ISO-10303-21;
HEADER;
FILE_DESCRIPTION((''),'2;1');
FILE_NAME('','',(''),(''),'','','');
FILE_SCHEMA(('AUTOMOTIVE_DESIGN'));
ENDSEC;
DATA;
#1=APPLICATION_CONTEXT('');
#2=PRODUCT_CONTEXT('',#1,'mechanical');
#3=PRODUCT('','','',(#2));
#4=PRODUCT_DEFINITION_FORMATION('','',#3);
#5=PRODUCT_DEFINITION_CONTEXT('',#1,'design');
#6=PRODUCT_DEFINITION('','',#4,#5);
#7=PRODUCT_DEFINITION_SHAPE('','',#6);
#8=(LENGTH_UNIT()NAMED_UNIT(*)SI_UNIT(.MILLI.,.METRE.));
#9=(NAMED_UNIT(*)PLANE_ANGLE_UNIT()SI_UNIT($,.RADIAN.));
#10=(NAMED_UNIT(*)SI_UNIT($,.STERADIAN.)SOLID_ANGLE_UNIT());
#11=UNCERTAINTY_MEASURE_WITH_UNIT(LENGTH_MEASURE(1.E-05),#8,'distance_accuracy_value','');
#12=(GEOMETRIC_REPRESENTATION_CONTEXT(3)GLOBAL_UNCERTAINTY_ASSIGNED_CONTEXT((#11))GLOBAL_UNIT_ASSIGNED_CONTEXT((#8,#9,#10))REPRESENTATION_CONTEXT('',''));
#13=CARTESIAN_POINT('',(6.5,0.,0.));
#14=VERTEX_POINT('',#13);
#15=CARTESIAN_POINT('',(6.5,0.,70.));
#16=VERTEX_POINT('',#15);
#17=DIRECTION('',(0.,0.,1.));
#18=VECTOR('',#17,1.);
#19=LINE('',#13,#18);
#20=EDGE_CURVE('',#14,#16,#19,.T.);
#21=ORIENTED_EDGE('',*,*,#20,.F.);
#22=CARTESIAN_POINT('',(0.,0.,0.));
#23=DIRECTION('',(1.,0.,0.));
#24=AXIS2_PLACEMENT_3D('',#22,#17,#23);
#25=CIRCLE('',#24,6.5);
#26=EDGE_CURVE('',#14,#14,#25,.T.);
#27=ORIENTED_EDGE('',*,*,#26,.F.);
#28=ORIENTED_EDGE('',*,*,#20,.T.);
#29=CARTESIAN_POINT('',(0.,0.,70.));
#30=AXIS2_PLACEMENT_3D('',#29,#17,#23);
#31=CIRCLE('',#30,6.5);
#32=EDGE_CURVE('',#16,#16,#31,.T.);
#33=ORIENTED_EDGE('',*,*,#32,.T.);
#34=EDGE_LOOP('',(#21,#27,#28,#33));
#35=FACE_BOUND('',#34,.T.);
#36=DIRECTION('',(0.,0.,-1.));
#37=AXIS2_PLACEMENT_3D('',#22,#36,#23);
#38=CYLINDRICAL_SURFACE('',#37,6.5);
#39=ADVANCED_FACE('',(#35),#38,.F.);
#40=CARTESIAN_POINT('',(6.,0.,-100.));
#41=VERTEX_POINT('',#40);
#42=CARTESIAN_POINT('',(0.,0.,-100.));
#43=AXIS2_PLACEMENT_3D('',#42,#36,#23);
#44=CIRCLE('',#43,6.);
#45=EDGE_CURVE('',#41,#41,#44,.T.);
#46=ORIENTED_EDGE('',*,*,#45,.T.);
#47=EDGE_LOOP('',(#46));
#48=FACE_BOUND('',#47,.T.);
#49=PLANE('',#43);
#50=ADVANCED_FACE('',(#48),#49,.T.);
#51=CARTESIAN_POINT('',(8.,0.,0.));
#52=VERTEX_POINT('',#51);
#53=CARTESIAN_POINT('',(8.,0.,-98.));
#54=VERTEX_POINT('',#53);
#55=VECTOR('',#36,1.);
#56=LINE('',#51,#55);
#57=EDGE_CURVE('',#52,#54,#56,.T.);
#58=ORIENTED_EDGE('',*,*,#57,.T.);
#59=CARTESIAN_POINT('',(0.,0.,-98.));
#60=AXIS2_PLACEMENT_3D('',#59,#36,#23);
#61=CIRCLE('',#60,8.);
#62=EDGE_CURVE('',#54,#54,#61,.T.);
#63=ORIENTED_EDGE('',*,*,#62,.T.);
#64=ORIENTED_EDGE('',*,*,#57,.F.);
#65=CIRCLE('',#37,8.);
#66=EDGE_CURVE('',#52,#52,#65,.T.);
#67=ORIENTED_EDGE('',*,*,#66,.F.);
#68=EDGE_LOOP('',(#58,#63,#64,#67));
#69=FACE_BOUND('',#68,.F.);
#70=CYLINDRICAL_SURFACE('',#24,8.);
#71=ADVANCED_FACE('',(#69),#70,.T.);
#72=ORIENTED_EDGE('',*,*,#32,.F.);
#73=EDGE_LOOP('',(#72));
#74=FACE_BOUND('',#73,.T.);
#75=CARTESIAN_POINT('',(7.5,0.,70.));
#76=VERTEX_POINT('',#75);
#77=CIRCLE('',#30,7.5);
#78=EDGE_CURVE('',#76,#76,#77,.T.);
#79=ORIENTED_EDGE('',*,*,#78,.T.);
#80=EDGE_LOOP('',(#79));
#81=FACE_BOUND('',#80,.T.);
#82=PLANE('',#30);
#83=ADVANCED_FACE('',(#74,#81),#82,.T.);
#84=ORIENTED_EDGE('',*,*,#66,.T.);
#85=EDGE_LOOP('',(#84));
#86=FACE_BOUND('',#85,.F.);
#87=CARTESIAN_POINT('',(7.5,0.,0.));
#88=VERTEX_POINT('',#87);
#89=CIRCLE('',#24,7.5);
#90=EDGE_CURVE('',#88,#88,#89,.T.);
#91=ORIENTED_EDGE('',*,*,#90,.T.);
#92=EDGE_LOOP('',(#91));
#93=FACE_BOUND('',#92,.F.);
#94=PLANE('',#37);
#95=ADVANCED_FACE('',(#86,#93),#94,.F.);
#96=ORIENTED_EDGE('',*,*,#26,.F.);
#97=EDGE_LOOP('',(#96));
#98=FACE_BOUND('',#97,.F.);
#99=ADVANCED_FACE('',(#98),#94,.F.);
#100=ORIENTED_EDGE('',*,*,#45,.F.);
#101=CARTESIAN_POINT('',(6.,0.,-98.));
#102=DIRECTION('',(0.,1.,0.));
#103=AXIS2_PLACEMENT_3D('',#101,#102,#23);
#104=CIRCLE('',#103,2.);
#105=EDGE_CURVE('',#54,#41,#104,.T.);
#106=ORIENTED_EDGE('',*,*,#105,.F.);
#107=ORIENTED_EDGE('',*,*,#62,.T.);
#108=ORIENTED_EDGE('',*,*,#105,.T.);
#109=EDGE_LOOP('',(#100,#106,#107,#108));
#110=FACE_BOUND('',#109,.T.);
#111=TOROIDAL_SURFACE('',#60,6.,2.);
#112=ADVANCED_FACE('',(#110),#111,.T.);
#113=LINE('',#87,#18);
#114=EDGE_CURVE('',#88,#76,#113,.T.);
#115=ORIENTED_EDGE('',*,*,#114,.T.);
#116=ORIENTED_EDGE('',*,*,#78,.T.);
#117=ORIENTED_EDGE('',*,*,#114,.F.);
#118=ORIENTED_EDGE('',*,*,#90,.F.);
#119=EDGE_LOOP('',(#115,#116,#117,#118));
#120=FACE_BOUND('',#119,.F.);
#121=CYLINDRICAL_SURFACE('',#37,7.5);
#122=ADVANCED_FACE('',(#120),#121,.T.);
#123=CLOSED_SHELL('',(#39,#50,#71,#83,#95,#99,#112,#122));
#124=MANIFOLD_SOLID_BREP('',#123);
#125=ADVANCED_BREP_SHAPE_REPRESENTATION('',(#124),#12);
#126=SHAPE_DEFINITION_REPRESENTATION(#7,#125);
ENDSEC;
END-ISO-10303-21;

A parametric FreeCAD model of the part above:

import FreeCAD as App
import Part
import Sketcher
from FreeCAD import Vector


def edges_at(feature, points):
    """Names of the edges that pass closest to the given points."""
    edges = feature.Shape.Edges
    near = lambda p: min(range(len(edges)), key=lambda i: edges[i].distToShape(Part.Vertex(*p))[0])
    return sorted({f"Edge{near(p) + 1}" for p in points})

doc = App.newDocument("Part")
body = doc.addObject("PartDesign::Body", "Body")

# Sketch on XY plane
sketch1 = body.newObject("Sketcher::SketchObject", "Sketch")
sketch1.AttachmentSupport = (doc.getObject("XY_Plane"), [""])
sketch1.MapMode = "FlatFace"
sketch1.addGeometry([
    Part.Circle(Vector(0, 0, 0), Vector(0, 0, 1), 8),
    Part.Circle(Vector(0, 0, 0), Vector(0, 0, 1), 6),
], False)
sketch1.addConstraint([
    Sketcher.Constraint("Coincident", 0, 3, -1, 1),
    Sketcher.Constraint("Coincident", 1, 3, -1, 1),
    Sketcher.Constraint("Diameter", 0, 15.0),
    Sketcher.Constraint("Diameter", 1, 13.0),
])
pad1 = body.newObject("PartDesign::Pad", "Pad")
pad1.Profile = sketch1
pad1.Length = 70

# Sketch on XY plane
sketch2 = body.newObject("Sketcher::SketchObject", "Sketch001")
sketch2.AttachmentSupport = (doc.getObject("XY_Plane"), [""])
sketch2.MapMode = "FlatFace"
sketch2.addGeometry(Part.Circle(Vector(0, 0, 0), Vector(0, 0, 1), 8), False)
sketch2.addConstraint([
    Sketcher.Constraint("Coincident", 0, 3, -1, 1),
    Sketcher.Constraint("Diameter", 0, 16.0),
])
pad2 = body.newObject("PartDesign::Pad", "Pad001")
pad2.Profile = sketch2
pad2.Length = 100
pad2.Reversed = True
doc.recompute()

fillet = body.newObject("PartDesign::Fillet", "Fillet")
fillet.Base = (pad2, edges_at(pad2, [(-8, 0, -100)]))
fillet.Radius = 2

doc.recompute()
